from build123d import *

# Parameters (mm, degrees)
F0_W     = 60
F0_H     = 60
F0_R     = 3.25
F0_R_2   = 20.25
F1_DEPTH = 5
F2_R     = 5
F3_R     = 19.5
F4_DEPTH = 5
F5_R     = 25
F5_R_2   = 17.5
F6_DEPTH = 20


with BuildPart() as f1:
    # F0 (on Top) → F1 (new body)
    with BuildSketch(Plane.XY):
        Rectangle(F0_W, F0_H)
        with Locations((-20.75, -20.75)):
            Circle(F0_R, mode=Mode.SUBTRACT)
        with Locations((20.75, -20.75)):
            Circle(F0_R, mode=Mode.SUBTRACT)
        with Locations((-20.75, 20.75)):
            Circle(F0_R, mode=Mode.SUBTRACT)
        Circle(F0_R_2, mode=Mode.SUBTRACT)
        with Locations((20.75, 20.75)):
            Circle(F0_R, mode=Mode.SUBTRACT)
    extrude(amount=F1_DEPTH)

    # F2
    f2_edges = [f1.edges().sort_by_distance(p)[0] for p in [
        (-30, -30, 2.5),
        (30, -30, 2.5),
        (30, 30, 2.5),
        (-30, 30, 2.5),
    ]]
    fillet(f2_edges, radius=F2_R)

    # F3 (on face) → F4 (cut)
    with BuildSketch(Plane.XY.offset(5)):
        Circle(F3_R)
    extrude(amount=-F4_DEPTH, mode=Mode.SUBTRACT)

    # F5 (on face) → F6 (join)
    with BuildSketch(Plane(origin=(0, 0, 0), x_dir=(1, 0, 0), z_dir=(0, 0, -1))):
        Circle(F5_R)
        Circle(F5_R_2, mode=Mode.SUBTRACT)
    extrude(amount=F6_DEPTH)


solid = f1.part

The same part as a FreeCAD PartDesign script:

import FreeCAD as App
import Part
import Sketcher

V = App.Vector


def edges_at(feature, points):
    """Names of the edges that pass closest to the given points."""
    edges = feature.Shape.Edges
    near = lambda p: min(range(len(edges)), key=lambda i: edges[i].distToShape(Part.Vertex(*p))[0])
    return sorted({f"Edge{near(p) + 1}" for p in points})

doc = App.newDocument("Part")
body = doc.addObject("PartDesign::Body", "Body")

sketch1 = body.newObject("Sketcher::SketchObject", "Sketch")
sketch1.AttachmentSupport = (doc.getObject("XY_Plane"), [""])
sketch1.MapMode = "FlatFace"
sketch1.addGeometry(Part.LineSegment(V(-30, 30, 0), V(-30, -30, 0)), False)
sketch1.addGeometry(Part.LineSegment(V(-30, -30, 0), V(30, -30, 0)), False)
sketch1.addGeometry(Part.LineSegment(V(30, -30, 0), V(30, 30, 0)), False)
sketch1.addGeometry(Part.LineSegment(V(30, 30, 0), V(-30, 30, 0)), False)
sketch1.addGeometry(Part.Circle(V(-20.75, -20.75, 0), V(0, 0, 1), 3.25), False)
sketch1.addGeometry(Part.Circle(V(20.75, -20.75, 0), V(0, 0, 1), 3.25), False)
sketch1.addGeometry(Part.Circle(V(-20.75, 20.75, 0), V(0, 0, 1), 3.25), False)
sketch1.addGeometry(Part.Circle(V(0, 0, 0), V(0, 0, 1), 20.25), False)
sketch1.addGeometry(Part.Circle(V(20.75, 20.75, 0), V(0, 0, 1), 3.25), False)
sketch1.addConstraint(Sketcher.Constraint("Coincident", 0, 2, 1, 1))
sketch1.addConstraint(Sketcher.Constraint("Coincident", 1, 2, 2, 1))
sketch1.addConstraint(Sketcher.Constraint("Coincident", 2, 2, 3, 1))
sketch1.addConstraint(Sketcher.Constraint("Coincident", 3, 2, 0, 1))
sketch1.addConstraint(Sketcher.Constraint("Vertical", 0))
sketch1.addConstraint(Sketcher.Constraint("Horizontal", 1))
sketch1.addConstraint(Sketcher.Constraint("Vertical", 2))
sketch1.addConstraint(Sketcher.Constraint("Horizontal", 3))
sketch1.addConstraint(Sketcher.Constraint("Coincident", 7, 3, -1, 1))
sketch1.addConstraint(Sketcher.Constraint("Equal", 4, 5))
sketch1.addConstraint(Sketcher.Constraint("Equal", 5, 6))
sketch1.addConstraint(Sketcher.Constraint("Equal", 6, 8))
sketch1.addConstraint(Sketcher.Constraint("Symmetric", 5, 3, 6, 3, -1, 1))
sketch1.addConstraint(Sketcher.Constraint("Symmetric", 4, 3, 8, 3, -1, 1))
sketch1.addConstraint(Sketcher.Constraint("Symmetric", 0, 2, 2, 2, -1, 1))
sketch1.addConstraint(Sketcher.Constraint("Symmetric", 4, 3, 5, 3, -2))
sketch1.addConstraint(Sketcher.Constraint("Equal", 3, 0))
sketch1.addConstraint(Sketcher.Constraint("Diameter", 4, 6.5))
sketch1.addConstraint(Sketcher.Constraint("Diameter", 7, 40.5))
sketch1.addConstraint(Sketcher.Constraint("DistanceX", 1, 1, 1, 2, 60.0))
sketch1.addConstraint(Sketcher.Constraint("DistanceX", 4, 3, 5, 3, 41.5))
sketch1.addConstraint(Sketcher.Constraint("DistanceY", 4, 3, 6, 3, 41.5))
pad1 = body.newObject("PartDesign::Pad", "Pad")
pad1.Profile = sketch1
pad1.Length = 5
doc.recompute()

fillet = body.newObject("PartDesign::Fillet", "Fillet")
fillet.Base = (pad1, edges_at(pad1, [
    (-30, -30, 2.5),
    (30, -30, 2.5),
    (30, 30, 2.5),
    (-30, 30, 2.5),
]))
fillet.Radius = 5

sketch2 = body.newObject("Sketcher::SketchObject", "Sketch001")
sketch2.AttachmentSupport = (doc.getObject("XY_Plane"), [""])
sketch2.MapMode = "FlatFace"
sketch2.AttachmentOffset = App.Placement(V(0, 0, 5), App.Rotation())
sketch2.addGeometry(Part.Circle(V(0, 0, 0), V(0, 0, 1), 19.5), False)
sketch2.addConstraint(Sketcher.Constraint("Coincident", 0, 3, -1, 1))
sketch2.addConstraint(Sketcher.Constraint("Diameter", 0, 39.0))
pocket1 = body.newObject("PartDesign::Pocket", "Pocket")
pocket1.Profile = sketch2
pocket1.Length = 5

sketch3 = body.newObject("Sketcher::SketchObject", "Sketch002")
sketch3.AttachmentSupport = (doc.getObject("XY_Plane"), [""])
sketch3.MapMode = "FlatFace"
sketch3.addGeometry(Part.Circle(V(0, 0, 0), V(0, 0, 1), 25), False)
sketch3.addGeometry(Part.Circle(V(0, 0, 0), V(0, 0, 1), 17.5), False)
sketch3.addConstraint(Sketcher.Constraint("Coincident", 0, 3, -1, 1))
sketch3.addConstraint(Sketcher.Constraint("Coincident", 1, 3, -1, 1))
sketch3.addConstraint(Sketcher.Constraint("Diameter", 0, 50.0))
sketch3.addConstraint(Sketcher.Constraint("Diameter", 1, 35.0))
pad2 = body.newObject("PartDesign::Pad", "Pad001")
pad2.Profile = sketch3
pad2.Length = 20
pad2.Reversed = True

doc.recompute()
